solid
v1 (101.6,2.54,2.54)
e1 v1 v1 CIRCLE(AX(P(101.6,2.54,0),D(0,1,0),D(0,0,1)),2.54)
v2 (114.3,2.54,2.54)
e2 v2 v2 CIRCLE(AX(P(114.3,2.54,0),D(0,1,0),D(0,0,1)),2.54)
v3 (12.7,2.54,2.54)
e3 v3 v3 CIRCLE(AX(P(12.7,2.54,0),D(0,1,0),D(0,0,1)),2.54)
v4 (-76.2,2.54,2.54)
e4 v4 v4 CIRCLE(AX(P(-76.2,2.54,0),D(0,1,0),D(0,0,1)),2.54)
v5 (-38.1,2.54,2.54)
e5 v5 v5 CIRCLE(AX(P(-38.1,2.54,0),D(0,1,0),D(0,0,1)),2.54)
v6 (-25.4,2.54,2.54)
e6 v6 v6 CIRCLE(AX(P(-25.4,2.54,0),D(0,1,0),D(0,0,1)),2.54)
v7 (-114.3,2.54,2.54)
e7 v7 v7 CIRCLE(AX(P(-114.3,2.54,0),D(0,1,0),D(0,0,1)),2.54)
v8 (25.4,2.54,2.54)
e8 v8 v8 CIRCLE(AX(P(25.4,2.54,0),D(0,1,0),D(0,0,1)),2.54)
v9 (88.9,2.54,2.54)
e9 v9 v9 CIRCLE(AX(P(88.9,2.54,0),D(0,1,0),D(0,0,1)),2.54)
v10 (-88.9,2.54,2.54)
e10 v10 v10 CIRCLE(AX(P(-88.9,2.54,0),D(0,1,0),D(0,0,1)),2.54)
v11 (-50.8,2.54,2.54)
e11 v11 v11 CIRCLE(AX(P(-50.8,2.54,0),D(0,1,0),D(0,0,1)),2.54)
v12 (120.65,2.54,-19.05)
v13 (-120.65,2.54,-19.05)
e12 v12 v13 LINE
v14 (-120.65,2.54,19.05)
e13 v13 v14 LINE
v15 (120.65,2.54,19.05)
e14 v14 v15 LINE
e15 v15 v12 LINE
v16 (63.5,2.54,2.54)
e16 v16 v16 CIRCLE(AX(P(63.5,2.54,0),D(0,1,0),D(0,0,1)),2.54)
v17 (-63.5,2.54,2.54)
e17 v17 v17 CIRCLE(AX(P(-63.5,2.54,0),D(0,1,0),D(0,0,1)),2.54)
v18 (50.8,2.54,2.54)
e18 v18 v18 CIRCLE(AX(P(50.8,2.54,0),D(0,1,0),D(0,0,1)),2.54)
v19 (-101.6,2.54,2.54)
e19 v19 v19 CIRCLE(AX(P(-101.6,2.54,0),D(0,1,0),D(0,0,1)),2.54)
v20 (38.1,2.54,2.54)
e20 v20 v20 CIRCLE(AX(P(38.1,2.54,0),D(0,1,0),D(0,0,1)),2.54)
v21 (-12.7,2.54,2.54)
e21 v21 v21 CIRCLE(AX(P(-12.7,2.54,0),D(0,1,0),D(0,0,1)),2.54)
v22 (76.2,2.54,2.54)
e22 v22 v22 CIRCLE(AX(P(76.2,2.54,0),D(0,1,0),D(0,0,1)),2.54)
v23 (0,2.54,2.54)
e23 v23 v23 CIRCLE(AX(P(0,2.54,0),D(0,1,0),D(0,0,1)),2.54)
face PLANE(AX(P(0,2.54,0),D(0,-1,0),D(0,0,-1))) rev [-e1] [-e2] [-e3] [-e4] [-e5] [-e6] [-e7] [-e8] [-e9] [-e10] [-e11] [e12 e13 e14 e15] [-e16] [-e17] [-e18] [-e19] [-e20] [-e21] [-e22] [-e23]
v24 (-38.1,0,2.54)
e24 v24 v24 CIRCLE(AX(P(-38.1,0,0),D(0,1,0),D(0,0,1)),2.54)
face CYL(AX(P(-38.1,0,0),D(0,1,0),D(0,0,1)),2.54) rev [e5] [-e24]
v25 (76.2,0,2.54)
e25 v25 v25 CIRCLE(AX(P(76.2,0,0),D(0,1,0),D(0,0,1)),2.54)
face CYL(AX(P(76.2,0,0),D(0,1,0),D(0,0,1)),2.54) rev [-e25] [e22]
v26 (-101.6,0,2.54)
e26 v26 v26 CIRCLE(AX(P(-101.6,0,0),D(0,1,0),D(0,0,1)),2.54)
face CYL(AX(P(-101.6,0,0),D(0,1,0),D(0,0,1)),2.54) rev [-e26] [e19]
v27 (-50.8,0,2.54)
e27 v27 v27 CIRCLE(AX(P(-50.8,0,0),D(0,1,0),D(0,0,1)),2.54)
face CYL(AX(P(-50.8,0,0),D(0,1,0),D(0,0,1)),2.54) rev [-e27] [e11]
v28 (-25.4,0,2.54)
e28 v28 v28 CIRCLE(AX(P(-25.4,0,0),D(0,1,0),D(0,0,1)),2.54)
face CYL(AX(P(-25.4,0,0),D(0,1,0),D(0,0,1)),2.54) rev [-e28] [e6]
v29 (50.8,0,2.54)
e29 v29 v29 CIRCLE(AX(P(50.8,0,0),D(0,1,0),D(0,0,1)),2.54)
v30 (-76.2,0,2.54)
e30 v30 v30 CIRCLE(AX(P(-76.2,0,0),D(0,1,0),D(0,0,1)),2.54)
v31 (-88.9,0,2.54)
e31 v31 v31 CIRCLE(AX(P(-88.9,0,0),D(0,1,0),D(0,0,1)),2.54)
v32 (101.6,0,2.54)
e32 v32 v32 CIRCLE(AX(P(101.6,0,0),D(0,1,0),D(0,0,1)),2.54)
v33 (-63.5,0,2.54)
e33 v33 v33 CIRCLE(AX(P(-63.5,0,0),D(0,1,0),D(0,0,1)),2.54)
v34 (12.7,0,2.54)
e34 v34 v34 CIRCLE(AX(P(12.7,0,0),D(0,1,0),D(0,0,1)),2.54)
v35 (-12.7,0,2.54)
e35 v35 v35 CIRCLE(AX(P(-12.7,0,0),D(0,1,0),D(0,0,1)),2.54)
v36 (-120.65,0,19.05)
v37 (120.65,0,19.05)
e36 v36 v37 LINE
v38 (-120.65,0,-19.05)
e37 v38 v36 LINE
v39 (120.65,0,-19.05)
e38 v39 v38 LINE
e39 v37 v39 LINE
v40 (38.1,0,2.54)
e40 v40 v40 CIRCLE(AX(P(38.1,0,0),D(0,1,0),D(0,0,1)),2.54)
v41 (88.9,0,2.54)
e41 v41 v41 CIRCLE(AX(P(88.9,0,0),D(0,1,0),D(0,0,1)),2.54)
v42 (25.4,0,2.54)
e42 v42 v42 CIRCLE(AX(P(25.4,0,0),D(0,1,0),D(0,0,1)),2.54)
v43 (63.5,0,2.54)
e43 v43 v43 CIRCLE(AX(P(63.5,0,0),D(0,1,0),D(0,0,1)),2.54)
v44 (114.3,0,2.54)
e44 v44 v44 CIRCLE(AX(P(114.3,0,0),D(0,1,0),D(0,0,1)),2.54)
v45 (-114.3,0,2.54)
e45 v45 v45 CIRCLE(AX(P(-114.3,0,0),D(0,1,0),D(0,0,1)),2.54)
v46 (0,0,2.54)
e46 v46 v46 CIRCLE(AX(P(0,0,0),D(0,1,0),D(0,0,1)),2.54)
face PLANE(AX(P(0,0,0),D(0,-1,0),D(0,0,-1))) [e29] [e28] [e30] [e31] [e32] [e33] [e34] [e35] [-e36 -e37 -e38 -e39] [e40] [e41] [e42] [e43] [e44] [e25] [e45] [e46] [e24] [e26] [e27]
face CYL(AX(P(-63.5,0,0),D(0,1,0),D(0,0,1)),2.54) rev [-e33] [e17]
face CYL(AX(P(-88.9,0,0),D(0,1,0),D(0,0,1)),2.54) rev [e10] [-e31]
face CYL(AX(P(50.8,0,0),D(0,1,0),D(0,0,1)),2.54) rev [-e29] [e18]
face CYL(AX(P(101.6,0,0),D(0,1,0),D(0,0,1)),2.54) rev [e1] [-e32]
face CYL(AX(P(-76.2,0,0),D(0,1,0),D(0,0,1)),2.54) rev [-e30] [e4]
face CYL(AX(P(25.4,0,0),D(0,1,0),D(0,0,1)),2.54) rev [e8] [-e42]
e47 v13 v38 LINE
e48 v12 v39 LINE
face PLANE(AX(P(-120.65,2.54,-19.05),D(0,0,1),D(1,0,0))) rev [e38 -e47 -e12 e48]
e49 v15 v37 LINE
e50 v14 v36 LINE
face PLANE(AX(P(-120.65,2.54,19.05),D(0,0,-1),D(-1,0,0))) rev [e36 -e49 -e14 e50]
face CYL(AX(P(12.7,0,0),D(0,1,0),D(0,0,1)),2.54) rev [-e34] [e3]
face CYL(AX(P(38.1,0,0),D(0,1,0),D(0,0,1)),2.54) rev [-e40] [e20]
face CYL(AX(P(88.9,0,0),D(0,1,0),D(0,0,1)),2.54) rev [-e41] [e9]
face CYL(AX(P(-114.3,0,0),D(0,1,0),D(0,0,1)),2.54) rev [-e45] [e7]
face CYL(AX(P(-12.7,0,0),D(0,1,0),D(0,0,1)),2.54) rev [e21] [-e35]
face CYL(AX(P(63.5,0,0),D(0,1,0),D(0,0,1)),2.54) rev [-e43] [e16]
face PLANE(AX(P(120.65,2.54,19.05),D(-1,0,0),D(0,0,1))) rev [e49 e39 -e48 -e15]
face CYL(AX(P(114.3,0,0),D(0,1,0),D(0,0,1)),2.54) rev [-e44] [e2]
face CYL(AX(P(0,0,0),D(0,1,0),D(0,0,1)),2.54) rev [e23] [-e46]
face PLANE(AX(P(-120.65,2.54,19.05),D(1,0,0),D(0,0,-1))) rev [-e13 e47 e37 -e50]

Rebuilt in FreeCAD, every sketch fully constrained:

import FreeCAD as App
import Part
import Sketcher
from FreeCAD import Vector
Q = App.Units.Quantity


def add_polygon(sketch, points):
    """Adds a closed chain of lines whose ends are joined by coincident constraints."""
    first, n = sketch.GeometryCount, len(points)
    for a, b in zip(points, points[1:] + points[:1]):
        sketch.addGeometry(Part.LineSegment(App.Vector(*a, 0), App.Vector(*b, 0)), False)
    for i in range(n):
        sketch.addConstraint(Sketcher.Constraint("Coincident", first + i, 2, first + (i + 1) % n, 1))

doc = App.newDocument("Part")
body = doc.addObject("PartDesign::Body", "Body")

# Sketch on XZ plane
sketch1 = body.newObject("Sketcher::SketchObject", "Sketch")
sketch1.AttachmentSupport = (doc.getObject("XZ_Plane"), [""])
sketch1.MapMode = "FlatFace"
add_polygon(sketch1, [(-120.65, -19.05), (-120.65, 19.05), (120.65, 19.05), (120.65, -19.05)])  # lines 0-3
sketch1.addConstraint(Sketcher.Constraint("Vertical", 0))
sketch1.addConstraint(Sketcher.Constraint("Horizontal", 1))
sketch1.addConstraint(Sketcher.Constraint("Vertical", 2))
sketch1.addConstraint(Sketcher.Constraint("Horizontal", 3))
sketch1.addConstraint(Sketcher.Constraint("Symmetric", 0, 2, 2, 2, -1, 1))
sketch1.addConstraint(Sketcher.Constraint("DistanceX", 1, 1, 1, 2, Q("9.5 in")))
sketch1.addConstraint(Sketcher.Constraint("DistanceY", 0, 1, 0, 2, Q("1.5 in")))
pad1 = body.newObject("PartDesign::Pad", "Pad")
pad1.Profile = sketch1
pad1.Length = Q("0.1 in")
pad1.Reversed = True

# Sketch on XZ plane
sketch2 = body.newObject("Sketcher::SketchObject", "Sketch001")
sketch2.AttachmentSupport = (doc.getObject("XZ_Plane"), [""])
sketch2.MapMode = "FlatFace"
sketch2.AttachmentOffset = App.Placement(Vector(0, 0, -0.1 * 25.4), App.Rotation())
sketch2.addGeometry(Part.Circle(Vector(-114.3, 0, 0), Vector(0, 0, 1), 2.54), False)
sketch2.addConstraint(Sketcher.Constraint("PointOnObject", 0, 3, -1))
sketch2.addConstraint(Sketcher.Constraint("Diameter", 0, Q("0.2 in")))
sketch2.addConstraint(Sketcher.Constraint("DistanceX", 0, 3, -1, 1, Q("4.5 in")))
pocket1 = body.newObject("PartDesign::Pocket", "Pocket")
pocket1.Profile = sketch2
pocket1.Length = Q("0.1 in")
pocket1.Reversed = True
doc.recompute()

linearpattern = body.newObject("PartDesign::LinearPattern", "LinearPattern")
linearpattern.Originals = [pocket1]
linearpattern.Direction = (doc.getObject("X_Axis"), [""])
linearpattern.Mode = "offset"
linearpattern.Offset = Q("0.5 in")
linearpattern.Occurrences = 19
body.Tip = linearpattern

doc.recompute()
